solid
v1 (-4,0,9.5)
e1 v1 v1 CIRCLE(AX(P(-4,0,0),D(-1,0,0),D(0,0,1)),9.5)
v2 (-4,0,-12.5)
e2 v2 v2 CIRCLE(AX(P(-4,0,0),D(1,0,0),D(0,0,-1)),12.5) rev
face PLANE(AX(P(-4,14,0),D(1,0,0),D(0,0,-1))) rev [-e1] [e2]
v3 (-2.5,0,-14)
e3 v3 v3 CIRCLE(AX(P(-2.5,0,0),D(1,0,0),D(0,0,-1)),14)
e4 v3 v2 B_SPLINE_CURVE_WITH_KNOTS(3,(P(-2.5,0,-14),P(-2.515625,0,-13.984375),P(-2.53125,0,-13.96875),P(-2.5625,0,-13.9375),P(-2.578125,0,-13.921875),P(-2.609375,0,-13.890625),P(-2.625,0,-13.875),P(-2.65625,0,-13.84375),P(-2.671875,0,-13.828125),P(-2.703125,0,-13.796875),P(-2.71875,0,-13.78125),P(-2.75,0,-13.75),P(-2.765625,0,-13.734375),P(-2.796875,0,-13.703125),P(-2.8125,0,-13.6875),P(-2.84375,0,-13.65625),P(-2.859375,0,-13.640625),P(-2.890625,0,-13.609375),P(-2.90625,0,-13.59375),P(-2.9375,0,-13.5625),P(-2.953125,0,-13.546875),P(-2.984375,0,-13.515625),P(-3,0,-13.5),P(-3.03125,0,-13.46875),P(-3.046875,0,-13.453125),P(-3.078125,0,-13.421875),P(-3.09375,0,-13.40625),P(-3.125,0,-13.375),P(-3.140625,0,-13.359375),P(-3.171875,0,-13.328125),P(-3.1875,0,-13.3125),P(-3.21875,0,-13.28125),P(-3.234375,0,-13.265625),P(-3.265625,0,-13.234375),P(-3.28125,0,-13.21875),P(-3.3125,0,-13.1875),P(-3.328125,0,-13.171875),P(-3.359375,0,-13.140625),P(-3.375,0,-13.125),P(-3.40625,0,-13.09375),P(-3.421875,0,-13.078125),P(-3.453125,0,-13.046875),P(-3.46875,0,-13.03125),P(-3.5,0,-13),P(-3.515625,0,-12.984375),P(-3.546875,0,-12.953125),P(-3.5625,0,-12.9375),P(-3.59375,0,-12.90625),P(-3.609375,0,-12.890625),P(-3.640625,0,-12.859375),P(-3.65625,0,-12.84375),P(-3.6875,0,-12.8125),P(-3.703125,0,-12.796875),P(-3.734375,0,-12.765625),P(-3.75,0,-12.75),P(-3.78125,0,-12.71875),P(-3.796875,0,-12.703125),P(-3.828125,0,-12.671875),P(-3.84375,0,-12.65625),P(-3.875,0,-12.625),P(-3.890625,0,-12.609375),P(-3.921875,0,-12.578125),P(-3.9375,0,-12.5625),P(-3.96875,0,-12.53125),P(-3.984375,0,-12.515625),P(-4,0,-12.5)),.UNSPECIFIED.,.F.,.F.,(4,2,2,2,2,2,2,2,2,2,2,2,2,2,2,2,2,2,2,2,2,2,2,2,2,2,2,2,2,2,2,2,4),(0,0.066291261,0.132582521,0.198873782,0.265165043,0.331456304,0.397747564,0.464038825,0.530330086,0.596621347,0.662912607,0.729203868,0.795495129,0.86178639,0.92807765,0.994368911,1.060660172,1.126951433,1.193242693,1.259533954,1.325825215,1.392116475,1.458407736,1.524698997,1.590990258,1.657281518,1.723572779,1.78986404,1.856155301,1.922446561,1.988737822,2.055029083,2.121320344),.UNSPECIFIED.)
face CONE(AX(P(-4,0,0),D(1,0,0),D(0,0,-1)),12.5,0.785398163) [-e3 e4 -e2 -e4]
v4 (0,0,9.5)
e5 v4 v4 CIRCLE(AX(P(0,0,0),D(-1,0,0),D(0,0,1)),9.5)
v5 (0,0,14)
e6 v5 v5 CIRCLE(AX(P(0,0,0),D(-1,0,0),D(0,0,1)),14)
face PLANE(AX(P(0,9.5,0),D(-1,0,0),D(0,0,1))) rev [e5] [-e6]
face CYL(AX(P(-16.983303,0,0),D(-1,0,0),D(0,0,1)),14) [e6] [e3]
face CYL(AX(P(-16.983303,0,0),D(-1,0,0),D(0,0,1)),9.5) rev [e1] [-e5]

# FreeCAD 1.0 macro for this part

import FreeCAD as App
import Part
import Sketcher
Q = App.Units.Quantity


def edges_at(feature, points):
    """Names of the edges that pass closest to the given points."""
    edges = feature.Shape.Edges
    near = lambda p: min(range(len(edges)), key=lambda i: edges[i].distToShape(Part.Vertex(*p))[0])
    return sorted({f"Edge{near(p) + 1}" for p in points})


def add_polygon(sketch, points):
    """Adds a closed chain of lines whose ends are joined by coincident constraints."""
    first, n = sketch.GeometryCount, len(points)
    for a, b in zip(points, points[1:] + points[:1]):
        sketch.addGeometry(Part.LineSegment(App.Vector(*a, 0), App.Vector(*b, 0)), False)
    for i in range(n):
        sketch.addConstraint(Sketcher.Constraint("Coincident", first + i, 2, first + (i + 1) % n, 1))

doc = App.newDocument("Part")
body = doc.addObject("PartDesign::Body", "Body")

# Sketch on XY plane
sketch1 = body.newObject("Sketcher::SketchObject", "Sketch")
sketch1.AttachmentSupport = (doc.getObject("XY_Plane"), [""])
sketch1.MapMode = "FlatFace"
add_polygon(sketch1, [(-4, 14), (-4, 9.5), (0, 9.5), (0, 14)])  # lines 0-3
sketch1.addConstraint(Sketcher.Constraint("Vertical", 0))
sketch1.addConstraint(Sketcher.Constraint("Horizontal", 1))
sketch1.addConstraint(Sketcher.Constraint("Vertical", 2))
sketch1.addConstraint(Sketcher.Constraint("Horizontal", 3))
sketch1.addConstraint(Sketcher.Constraint("PointOnObject", 1, 2, -2))
sketch1.addConstraint(Sketcher.Constraint("DistanceX", 1, 1, 1, 2, Q("4 mm")))
sketch1.addConstraint(Sketcher.Constraint("DistanceY", 0, 2, 0, 1, Q("4.5 mm")))
sketch1.addConstraint(Sketcher.Constraint("DistanceY", -1, 1, 2, 2, Q("14 mm")))
revolution = body.newObject("PartDesign::Revolution", "Revolution")
revolution.Profile = sketch1
revolution.ReferenceAxis = (sketch1, ["H_Axis"])
revolution.Angle = 360
doc.recompute()

chamfer = body.newObject("PartDesign::Chamfer", "Chamfer")
chamfer.Base = (revolution, edges_at(revolution, [(-4, 0, -14)]))
chamfer.Size = 1.5

doc.recompute()
